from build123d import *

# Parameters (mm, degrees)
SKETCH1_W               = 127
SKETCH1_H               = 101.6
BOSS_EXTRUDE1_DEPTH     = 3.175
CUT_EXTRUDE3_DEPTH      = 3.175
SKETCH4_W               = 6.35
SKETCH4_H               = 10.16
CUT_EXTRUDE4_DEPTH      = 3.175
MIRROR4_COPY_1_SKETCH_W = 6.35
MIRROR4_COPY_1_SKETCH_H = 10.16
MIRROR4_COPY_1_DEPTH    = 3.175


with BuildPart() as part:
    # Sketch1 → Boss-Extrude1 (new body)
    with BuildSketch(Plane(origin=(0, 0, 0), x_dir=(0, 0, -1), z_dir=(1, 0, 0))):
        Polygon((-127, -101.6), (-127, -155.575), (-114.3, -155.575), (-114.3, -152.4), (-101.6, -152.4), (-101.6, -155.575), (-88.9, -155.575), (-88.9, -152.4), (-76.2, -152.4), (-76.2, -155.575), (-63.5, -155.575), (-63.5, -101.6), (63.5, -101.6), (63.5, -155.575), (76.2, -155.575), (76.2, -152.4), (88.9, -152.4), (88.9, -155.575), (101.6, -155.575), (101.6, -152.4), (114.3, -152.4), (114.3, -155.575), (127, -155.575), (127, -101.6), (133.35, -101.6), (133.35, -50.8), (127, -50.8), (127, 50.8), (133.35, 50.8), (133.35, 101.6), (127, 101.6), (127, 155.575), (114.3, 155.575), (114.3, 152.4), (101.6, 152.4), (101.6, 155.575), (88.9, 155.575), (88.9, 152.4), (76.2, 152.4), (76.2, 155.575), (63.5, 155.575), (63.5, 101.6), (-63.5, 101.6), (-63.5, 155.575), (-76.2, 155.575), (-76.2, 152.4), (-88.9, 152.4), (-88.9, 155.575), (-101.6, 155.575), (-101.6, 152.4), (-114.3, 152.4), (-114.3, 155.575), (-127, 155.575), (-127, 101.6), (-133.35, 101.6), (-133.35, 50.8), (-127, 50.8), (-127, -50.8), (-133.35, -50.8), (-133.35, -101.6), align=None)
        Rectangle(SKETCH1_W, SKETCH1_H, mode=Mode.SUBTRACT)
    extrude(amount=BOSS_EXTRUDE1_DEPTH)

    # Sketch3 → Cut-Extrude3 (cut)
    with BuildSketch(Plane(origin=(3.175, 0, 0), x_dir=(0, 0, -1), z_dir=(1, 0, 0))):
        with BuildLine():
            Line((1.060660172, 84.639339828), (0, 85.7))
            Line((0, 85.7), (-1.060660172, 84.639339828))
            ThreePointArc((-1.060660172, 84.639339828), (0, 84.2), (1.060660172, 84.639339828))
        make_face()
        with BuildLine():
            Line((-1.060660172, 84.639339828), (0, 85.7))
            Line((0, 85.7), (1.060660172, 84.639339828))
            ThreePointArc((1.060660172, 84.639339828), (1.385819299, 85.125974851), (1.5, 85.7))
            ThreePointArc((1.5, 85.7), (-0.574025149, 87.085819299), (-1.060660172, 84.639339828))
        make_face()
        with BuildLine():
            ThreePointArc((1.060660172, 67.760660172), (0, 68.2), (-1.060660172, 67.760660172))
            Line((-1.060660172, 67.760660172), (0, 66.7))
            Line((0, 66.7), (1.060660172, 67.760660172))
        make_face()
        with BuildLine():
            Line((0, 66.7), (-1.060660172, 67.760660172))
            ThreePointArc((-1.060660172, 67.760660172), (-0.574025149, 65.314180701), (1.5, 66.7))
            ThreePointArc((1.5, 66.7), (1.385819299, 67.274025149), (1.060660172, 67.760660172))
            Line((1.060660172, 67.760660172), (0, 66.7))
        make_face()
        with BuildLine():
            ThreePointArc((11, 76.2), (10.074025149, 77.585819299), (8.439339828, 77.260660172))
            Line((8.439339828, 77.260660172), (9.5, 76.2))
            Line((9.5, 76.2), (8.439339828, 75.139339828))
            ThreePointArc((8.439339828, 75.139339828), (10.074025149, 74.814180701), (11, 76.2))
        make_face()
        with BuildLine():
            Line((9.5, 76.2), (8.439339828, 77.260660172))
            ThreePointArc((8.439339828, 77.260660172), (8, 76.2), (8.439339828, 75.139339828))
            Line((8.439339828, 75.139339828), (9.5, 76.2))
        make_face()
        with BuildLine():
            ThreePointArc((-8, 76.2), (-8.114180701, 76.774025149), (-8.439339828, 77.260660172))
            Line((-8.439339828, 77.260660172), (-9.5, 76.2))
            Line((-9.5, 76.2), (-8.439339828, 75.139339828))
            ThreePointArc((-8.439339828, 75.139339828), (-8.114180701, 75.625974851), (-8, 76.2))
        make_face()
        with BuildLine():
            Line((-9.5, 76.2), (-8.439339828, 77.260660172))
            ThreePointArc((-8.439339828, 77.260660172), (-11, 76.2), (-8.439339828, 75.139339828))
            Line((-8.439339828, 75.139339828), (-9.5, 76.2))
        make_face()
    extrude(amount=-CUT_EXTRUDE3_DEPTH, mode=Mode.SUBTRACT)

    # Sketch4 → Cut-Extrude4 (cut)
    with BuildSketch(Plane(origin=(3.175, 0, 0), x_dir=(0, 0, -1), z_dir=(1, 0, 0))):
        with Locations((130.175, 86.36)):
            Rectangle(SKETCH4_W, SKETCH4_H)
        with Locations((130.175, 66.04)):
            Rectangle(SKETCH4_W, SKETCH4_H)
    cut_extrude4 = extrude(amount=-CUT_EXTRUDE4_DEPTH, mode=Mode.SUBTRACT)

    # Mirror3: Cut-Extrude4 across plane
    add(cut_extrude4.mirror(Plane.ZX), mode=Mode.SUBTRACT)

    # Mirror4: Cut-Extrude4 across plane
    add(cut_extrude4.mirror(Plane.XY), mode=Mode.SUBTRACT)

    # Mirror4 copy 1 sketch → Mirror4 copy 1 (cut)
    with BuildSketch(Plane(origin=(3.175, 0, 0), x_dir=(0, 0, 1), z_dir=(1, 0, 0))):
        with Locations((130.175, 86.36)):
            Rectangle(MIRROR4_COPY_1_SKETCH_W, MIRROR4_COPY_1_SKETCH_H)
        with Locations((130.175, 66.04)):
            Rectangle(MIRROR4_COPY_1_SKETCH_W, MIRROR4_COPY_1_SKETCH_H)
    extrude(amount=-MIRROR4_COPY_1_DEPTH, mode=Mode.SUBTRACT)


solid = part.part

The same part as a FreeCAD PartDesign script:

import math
import FreeCAD as App
import Part
import Sketcher
from FreeCAD import Vector
Q = App.Units.Quantity


def add_polygon(sketch, points):
    """Adds a closed chain of lines whose ends are joined by coincident constraints."""
    first, n = sketch.GeometryCount, len(points)
    for a, b in zip(points, points[1:] + points[:1]):
        sketch.addGeometry(Part.LineSegment(App.Vector(*a, 0), App.Vector(*b, 0)), False)
    for i in range(n):
        sketch.addConstraint(Sketcher.Constraint("Coincident", first + i, 2, first + (i + 1) % n, 1))

doc = App.newDocument("Part")
params = doc.addObject("Spreadsheet::Sheet", "Params")
for row, (alias, value) in enumerate([
    ("sketch1_width", "2 in"),
    ("sketch1_width2", "4 in"),
    ("sketch1_height", "5 in"),
    ("sketch1_height2", "0.5 in"),
    ("sketch1_height3", "0.25 in"),
    ("pad1_length", "0.125 in"),
    ("pocket1_length", "0.125 in"),
    ("sketch3_width", "0.4 in"),
    ("sketch3_height", "0.25 in"),
    ("pocket2_length", "0.125 in"),
    ("sketch4_width", "0.4 in"),
    ("sketch4_height", "0.25 in"),
    ("pocket3_length", "0.125 in"),
], start=1):
    params.set(f"A{row}", alias)
    params.set(f"B{row}", "=" + value)
    params.setAlias(f"B{row}", alias)

body = doc.addObject("PartDesign::Body", "Body")

# Sketch on YZ plane
sketch1 = body.newObject("Sketcher::SketchObject", "Sketch")
sketch1.AttachmentSupport = (doc.getObject("YZ_Plane"), [""])
sketch1.MapMode = "FlatFace"
add_polygon(sketch1, [(-101.6, 127), (-155.6, 127), (-155.6, 114.3), (-152.4, 114.3), (-152.4, 101.6), (-155.6, 101.6), (-155.6, 88.9), (-152.4, 88.9), (-152.4, 76.2), (-155.6, 76.2), (-155.6, 63.5), (-101.6, 63.5), (-101.6, -63.5), (-155.6, -63.5), (-155.6, -76.2), (-152.4, -76.2), (-152.4, -88.9), (-155.6, -88.9), (-155.6, -101.6), (-152.4, -101.6), (-152.4, -114.3), (-155.6, -114.3), (-155.6, -127), (-101.6, -127), (-101.6, -133.3), (-50.8, -133.3), (-50.8, -127), (50.8, -127), (50.8, -133.3), (101.6, -133.3), (101.6, -127), (155.6, -127), (155.6, -114.3), (152.4, -114.3), (152.4, -101.6), (155.6, -101.6), (155.6, -88.9), (152.4, -88.9), (152.4, -76.2), (155.6, -76.2), (155.6, -63.5), (101.6, -63.5), (101.6, 63.5), (155.6, 63.5), (155.6, 76.2), (152.4, 76.2), (152.4, 88.9), (155.6, 88.9), (155.6, 101.6), (152.4, 101.6), (152.4, 114.3), (155.6, 114.3), (155.6, 127), (101.6, 127), (101.6, 133.3), (50.8, 133.3), (50.8, 127), (-50.8, 127), (-50.8, 133.3), (-101.6, 133.3)])  # lines 0-59
add_polygon(sketch1, [(-50.8, -63.5), (-50.8, 63.5), (50.8, 63.5), (50.8, -63.5)])  # lines 60-63
sketch1.addConstraint([
    Sketcher.Constraint("Horizontal", 0),
    Sketcher.Constraint("Vertical", 1),
    Sketcher.Constraint("Horizontal", 2),
    Sketcher.Constraint("Vertical", 3),
    Sketcher.Constraint("Horizontal", 4),
    Sketcher.Constraint("Vertical", 5),
    Sketcher.Constraint("Horizontal", 6),
    Sketcher.Constraint("Vertical", 7),
    Sketcher.Constraint("Horizontal", 8),
    Sketcher.Constraint("Vertical", 9),
    Sketcher.Constraint("Horizontal", 10),
    Sketcher.Constraint("Vertical", 11),
    Sketcher.Constraint("Horizontal", 12),
    Sketcher.Constraint("Vertical", 13),
    Sketcher.Constraint("Horizontal", 14),
    Sketcher.Constraint("Vertical", 15),
    Sketcher.Constraint("Horizontal", 16),
    Sketcher.Constraint("Vertical", 17),
    Sketcher.Constraint("Horizontal", 18),
    Sketcher.Constraint("Vertical", 19),
    Sketcher.Constraint("Horizontal", 20),
    Sketcher.Constraint("Vertical", 21),
    Sketcher.Constraint("Horizontal", 22),
    Sketcher.Constraint("Vertical", 23),
    Sketcher.Constraint("Horizontal", 24),
    Sketcher.Constraint("Vertical", 25),
    Sketcher.Constraint("Horizontal", 26),
    Sketcher.Constraint("Vertical", 27),
    Sketcher.Constraint("Horizontal", 28),
    Sketcher.Constraint("Vertical", 29),
    Sketcher.Constraint("Horizontal", 30),
    Sketcher.Constraint("Vertical", 31),
    Sketcher.Constraint("Horizontal", 32),
    Sketcher.Constraint("Vertical", 33),
    Sketcher.Constraint("Horizontal", 34),
    Sketcher.Constraint("Vertical", 35),
    Sketcher.Constraint("Horizontal", 36),
    Sketcher.Constraint("Vertical", 37),
    Sketcher.Constraint("Horizontal", 38),
    Sketcher.Constraint("Vertical", 39),
    Sketcher.Constraint("Horizontal", 40),
    Sketcher.Constraint("Vertical", 41),
    Sketcher.Constraint("Horizontal", 42),
    Sketcher.Constraint("Vertical", 43),
    Sketcher.Constraint("Horizontal", 44),
    Sketcher.Constraint("Vertical", 45),
    Sketcher.Constraint("Horizontal", 46),
    Sketcher.Constraint("Vertical", 47),
    Sketcher.Constraint("Horizontal", 48),
    Sketcher.Constraint("Vertical", 49),
    Sketcher.Constraint("Horizontal", 50),
    Sketcher.Constraint("Vertical", 51),
    Sketcher.Constraint("Horizontal", 52),
    Sketcher.Constraint("Vertical", 53),
    Sketcher.Constraint("Horizontal", 54),
    Sketcher.Constraint("Vertical", 55),
    Sketcher.Constraint("Horizontal", 56),
    Sketcher.Constraint("Vertical", 57),
    Sketcher.Constraint("Horizontal", 58),
    Sketcher.Constraint("Vertical", 59),
    Sketcher.Constraint("Vertical", 60),
    Sketcher.Constraint("Horizontal", 61),
    Sketcher.Constraint("Vertical", 62),
    Sketcher.Constraint("Horizontal", 63),
    Sketcher.Constraint("Symmetric", 0, 2, 30, 2, -1, 1),
    Sketcher.Constraint("Symmetric", 2, 2, 32, 2, -1, 1),
    Sketcher.Constraint("Symmetric", 4, 2, 34, 2, -1, 1),
    Sketcher.Constraint("Symmetric", 6, 2, 36, 2, -1, 1),
    Sketcher.Constraint("Symmetric", 8, 2, 38, 2, -1, 1),
    Sketcher.Constraint("Symmetric", 10, 2, 40, 2, -1, 1),
    Sketcher.Constraint("Symmetric", 12, 2, 42, 2, -1, 1),
    Sketcher.Constraint("Symmetric", 14, 2, 44, 2, -1, 1),
    Sketcher.Constraint("Symmetric", 16, 2, 46, 2, -1, 1),
    Sketcher.Constraint("Symmetric", 18, 2, 48, 2, -1, 1),
    Sketcher.Constraint("Symmetric", 20, 2, 50, 2, -1, 1),
    Sketcher.Constraint("Symmetric", 22, 2, 52, 2, -1, 1),
    Sketcher.Constraint("Symmetric", 24, 2, 54, 2, -1, 1),
    Sketcher.Constraint("Symmetric", 26, 2, 56, 2, -1, 1),
    Sketcher.Constraint("Symmetric", 28, 2, 58, 2, -1, 1),
    Sketcher.Constraint("Symmetric", 60, 2, 62, 2, -1, 1),
    Sketcher.Constraint("Symmetric", 24, 2, 27, 2, -2),
    Sketcher.Constraint("Symmetric", 22, 2, 29, 2, -2),
    Sketcher.Constraint("Symmetric", 20, 2, 31, 2, -2),
    Sketcher.Constraint("Symmetric", 18, 2, 33, 2, -2),
    Sketcher.Constraint("Symmetric", 16, 2, 35, 2, -2),
    Sketcher.Constraint("Symmetric", 14, 2, 37, 2, -2),
    Sketcher.Constraint("Symmetric", 12, 2, 39, 2, -2),
    Sketcher.Constraint("Horizontal", 22, 2, 25, 2),
    Sketcher.Constraint("Horizontal", 42, 2, 60, 2),
    Sketcher.Constraint("Vertical", 1, 2, 4, 2),
    Sketcher.Constraint("Vertical", 3, 2, 6, 2),
    Sketcher.Constraint("Vertical", 5, 2, 8, 2),
    Sketcher.Constraint("Vertical", 11, 2, 22, 2),
    Sketcher.Constraint("Vertical", 57, 2, 60, 2),
    Sketcher.Constraint("Equal", 1, 3),
    Sketcher.Constraint("Equal", 3, 5),
    Sketcher.Constraint("Equal", 5, 7),
    Sketcher.Constraint("Equal", 7, 9),
    Sketcher.Constraint("DistanceX", 24, 1, 24, 2, Q("2 in")),
    Sketcher.Constraint("DistanceX", 26, 1, 26, 2, Q("4 in")),
    Sketcher.Constraint("DistanceY", 11, 2, 11, 1, Q("5 in")),
    Sketcher.Constraint("DistanceY", 1, 2, 1, 1, Q("0.5 in")),
    Sketcher.Constraint("DistanceX", 2, 2, -1, 1, Q("6 in")),
    Sketcher.Constraint("DistanceY", 23, 2, 23, 1, Q("0.25 in")),
    Sketcher.Constraint("DistanceX", 0, 2, 0, 1, Q("2.125 in")),
])
sketch1.setExpression("Constraints[162]", "Params.sketch1_width")
sketch1.setExpression("Constraints[163]", "Params.sketch1_width2")
sketch1.setExpression("Constraints[164]", "Params.sketch1_height")
sketch1.setExpression("Constraints[165]", "Params.sketch1_height2")
sketch1.setExpression("Constraints[167]", "Params.sketch1_height3")
pad1 = body.newObject("PartDesign::Pad", "Pad")
pad1.Profile = sketch1
pad1.setExpression("Length", "Params.pad1_length")

# Sketch on YZ plane
sketch2 = body.newObject("Sketcher::SketchObject", "Sketch001")
sketch2.AttachmentSupport = (doc.getObject("YZ_Plane"), [""])
sketch2.MapMode = "FlatFace"
sketch2.AttachmentOffset = App.Placement(Vector(0, 0, 0.125 * 25.4), App.Rotation())
sketch2.addGeometry([
    Part.ArcOfCircle(Part.Circle(Vector(85.7, 0, 0), Vector(0, 0, 1), 1.5), math.radians(135), math.radians(225)),  # 0
    Part.ArcOfCircle(Part.Circle(Vector(85.7, 0, 0), Vector(0, 0, 1), 1.5), math.radians(-135), math.radians(-90)),  # 1
    Part.ArcOfCircle(Part.Circle(Vector(85.7, 0, 0), Vector(0, 0, 1), 1.5), math.radians(-90), math.radians(135)),  # 2
    Part.ArcOfCircle(Part.Circle(Vector(66.7, 0, 0), Vector(0, 0, 1), 1.5), math.radians(-45), math.radians(45)),  # 3
    Part.ArcOfCircle(Part.Circle(Vector(66.7, 0, 0), Vector(0, 0, 1), 1.5), math.radians(45), math.radians(270)),  # 4
    Part.ArcOfCircle(Part.Circle(Vector(66.7, 0, 0), Vector(0, 0, 1), 1.5), math.radians(-90), math.radians(-45)),  # 5
    Part.ArcOfCircle(Part.Circle(Vector(76.2, -9.5, 0), Vector(0, 0, 1), 1.5), math.radians(-90), math.radians(45)),  # 6
    Part.ArcOfCircle(Part.Circle(Vector(76.2, -9.5, 0), Vector(0, 0, 1), 1.5), math.radians(45), math.radians(135)),  # 7
    Part.ArcOfCircle(Part.Circle(Vector(76.2, -9.5, 0), Vector(0, 0, 1), 1.5), math.radians(135), math.radians(270)),  # 8
    Part.ArcOfCircle(Part.Circle(Vector(76.2, 9.5, 0), Vector(0, 0, 1), 1.5), math.radians(-90), math.radians(-45)),  # 9
    Part.ArcOfCircle(Part.Circle(Vector(76.2, 9.5, 0), Vector(0, 0, 1), 1.5), math.radians(-45), math.radians(225)),  # 10
    Part.ArcOfCircle(Part.Circle(Vector(76.2, 9.5, 0), Vector(0, 0, 1), 1.5), math.radians(-135), math.radians(-90)),  # 11
], False)
sketch2.addConstraint([
    Sketcher.Constraint("Tangent", 0, 2, 1, 1),
    Sketcher.Constraint("Tangent", 1, 2, 2, 1),
    Sketcher.Constraint("Tangent", 2, 2, 0, 1),
    Sketcher.Constraint("Tangent", 3, 2, 4, 1),
    Sketcher.Constraint("Tangent", 4, 2, 5, 1),
    Sketcher.Constraint("Tangent", 5, 2, 3, 1),
    Sketcher.Constraint("Tangent", 6, 2, 7, 1),
    Sketcher.Constraint("Tangent", 7, 2, 8, 1),
    Sketcher.Constraint("Tangent", 8, 2, 6, 1),
    Sketcher.Constraint("Tangent", 9, 2, 10, 1),
    Sketcher.Constraint("Tangent", 10, 2, 11, 1),
    Sketcher.Constraint("Tangent", 11, 2, 9, 1),
    Sketcher.Constraint("Equal", 2, 3),
    Sketcher.Constraint("Equal", 5, 6),
    Sketcher.Constraint("Equal", 8, 9),
    Sketcher.Constraint("Symmetric", 6, 3, 9, 3, -1),
    Sketcher.Constraint("Symmetric", 0, 2, 2, 2, -1),
    Sketcher.Constraint("Symmetric", 3, 2, 5, 2, -1),
    Sketcher.Constraint("Horizontal", 2, 2, 3, 2),
    Sketcher.Constraint("Horizontal", 6, 2, 7, 2),
    Sketcher.Constraint("Horizontal", 9, 2, 10, 2),
    Sketcher.Constraint("Vertical", 2, 3, 1, 2),
    Sketcher.Constraint("Vertical", 5, 3, 4, 2),
    Sketcher.Constraint("Vertical", 11, 3, 8, 2),
    Sketcher.Constraint("Vertical", 6, 2, 9, 2),
    Sketcher.Constraint("Vertical", 8, 2, 11, 2),
    Sketcher.Constraint("DistanceX", -1, 1, 6, 3, Q("3 in")),
    Sketcher.Constraint("Radius", 0, 1.5),
    Sketcher.Constraint("DistanceX", -1, 1, 0, 3, 85.7),
    Sketcher.Constraint("DistanceX", -1, 1, 3, 3, 66.7),
    Sketcher.Constraint("DistanceY", 6, 3, -1, 1, 9.5),
    Sketcher.Constraint("DistanceX", -1, 1, 0, 2, 84.63934),
    Sketcher.Constraint("DistanceX", -1, 1, 6, 2, 77.26066),
])
pocket1 = body.newObject("PartDesign::Pocket", "Pocket")
pocket1.Profile = sketch2
pocket1.setExpression("Length", "Params.pocket1_length")

# Sketch on YZ plane
sketch3 = body.newObject("Sketcher::SketchObject", "Sketch002")
sketch3.AttachmentSupport = (doc.getObject("YZ_Plane"), [""])
sketch3.MapMode = "FlatFace"
sketch3.AttachmentOffset = App.Placement(Vector(0, 0, 0.125 * 25.4), App.Rotation())
add_polygon(sketch3, [(91, -127), (81, -127), (81, -133), (91, -133)])  # lines 0-3
add_polygon(sketch3, [(71, -127), (61, -127), (61, -133), (71, -133)])  # lines 4-7
sketch3.addConstraint([
    Sketcher.Constraint("Horizontal", 0),
    Sketcher.Constraint("Vertical", 1),
    Sketcher.Constraint("Horizontal", 2),
    Sketcher.Constraint("Vertical", 3),
    Sketcher.Constraint("Horizontal", 4),
    Sketcher.Constraint("Vertical", 5),
    Sketcher.Constraint("Horizontal", 6),
    Sketcher.Constraint("Vertical", 7),
    Sketcher.Constraint("Horizontal", 3, 2, 4, 2),
    Sketcher.Constraint("Horizontal", 2, 2, 5, 2),
    Sketcher.Constraint("Equal", 2, 4),
    Sketcher.Constraint("DistanceX", 0, 2, 0, 1, Q("0.4 in")),
    Sketcher.Constraint("DistanceY", 0, 2, -1, 1, Q("5 in")),
    Sketcher.Constraint("DistanceY", 1, 2, 1, 1, Q("0.25 in")),
    Sketcher.Constraint("DistanceX", -1, 1, 0, 2, Q("3.2 in")),
    Sketcher.Constraint("DistanceX", -1, 1, 4, 2, Q("2.4 in")),
])
sketch3.setExpression("Constraints[19]", "Params.sketch3_width")
sketch3.setExpression("Constraints[21]", "Params.sketch3_height")
pocket2 = body.newObject("PartDesign::Pocket", "Pocket001")
pocket2.Profile = sketch3
pocket2.setExpression("Length", "Params.pocket2_length")
doc.recompute()

mirrored = body.newObject("PartDesign::Mirrored", "Mirrored")
mirrored.Originals = [pocket2]
mirrored.MirrorPlane = (doc.getObject("XZ_Plane"), [""])
body.Tip = mirrored
doc.recompute()

mirrored2 = body.newObject("PartDesign::Mirrored", "Mirrored001")
mirrored2.Originals = [pocket2]
mirrored2.MirrorPlane = (doc.getObject("XY_Plane"), [""])
body.Tip = mirrored2

# Sketch on YZ plane
sketch4 = body.newObject("Sketcher::SketchObject", "Sketch003")
sketch4.AttachmentSupport = (doc.getObject("YZ_Plane"), [""])
sketch4.MapMode = "FlatFace"
sketch4.AttachmentOffset = App.Placement(Vector(0, 0, 0.125 * 25.4), App.Rotation())
add_polygon(sketch4, [(-91, 127), (-81, 127), (-81, 133), (-91, 133)])  # lines 0-3
add_polygon(sketch4, [(-71, 127), (-61, 127), (-61, 133), (-71, 133)])  # lines 4-7
sketch4.addConstraint([
    Sketcher.Constraint("Horizontal", 0),
    Sketcher.Constraint("Vertical", 1),
    Sketcher.Constraint("Horizontal", 2),
    Sketcher.Constraint("Vertical", 3),
    Sketcher.Constraint("Horizontal", 4),
    Sketcher.Constraint("Vertical", 5),
    Sketcher.Constraint("Horizontal", 6),
    Sketcher.Constraint("Vertical", 7),
    Sketcher.Constraint("Horizontal", 3, 2, 4, 2),
    Sketcher.Constraint("Horizontal", 2, 2, 5, 2),
    Sketcher.Constraint("Equal", 2, 4),
    Sketcher.Constraint("DistanceX", 0, 1, 0, 2, Q("0.4 in")),
    Sketcher.Constraint("DistanceY", -1, 1, 0, 2, Q("5 in")),
    Sketcher.Constraint("DistanceY", 1, 1, 1, 2, Q("0.25 in")),
    Sketcher.Constraint("DistanceX", 0, 2, -1, 1, Q("3.2 in")),
    Sketcher.Constraint("DistanceX", 4, 2, -1, 1, Q("2.4 in")),
])
sketch4.setExpression("Constraints[19]", "Params.sketch4_width")
sketch4.setExpression("Constraints[21]", "Params.sketch4_height")
pocket3 = body.newObject("PartDesign::Pocket", "Pocket002")
pocket3.Profile = sketch4
pocket3.setExpression("Length", "Params.pocket3_length")

doc.recompute()
